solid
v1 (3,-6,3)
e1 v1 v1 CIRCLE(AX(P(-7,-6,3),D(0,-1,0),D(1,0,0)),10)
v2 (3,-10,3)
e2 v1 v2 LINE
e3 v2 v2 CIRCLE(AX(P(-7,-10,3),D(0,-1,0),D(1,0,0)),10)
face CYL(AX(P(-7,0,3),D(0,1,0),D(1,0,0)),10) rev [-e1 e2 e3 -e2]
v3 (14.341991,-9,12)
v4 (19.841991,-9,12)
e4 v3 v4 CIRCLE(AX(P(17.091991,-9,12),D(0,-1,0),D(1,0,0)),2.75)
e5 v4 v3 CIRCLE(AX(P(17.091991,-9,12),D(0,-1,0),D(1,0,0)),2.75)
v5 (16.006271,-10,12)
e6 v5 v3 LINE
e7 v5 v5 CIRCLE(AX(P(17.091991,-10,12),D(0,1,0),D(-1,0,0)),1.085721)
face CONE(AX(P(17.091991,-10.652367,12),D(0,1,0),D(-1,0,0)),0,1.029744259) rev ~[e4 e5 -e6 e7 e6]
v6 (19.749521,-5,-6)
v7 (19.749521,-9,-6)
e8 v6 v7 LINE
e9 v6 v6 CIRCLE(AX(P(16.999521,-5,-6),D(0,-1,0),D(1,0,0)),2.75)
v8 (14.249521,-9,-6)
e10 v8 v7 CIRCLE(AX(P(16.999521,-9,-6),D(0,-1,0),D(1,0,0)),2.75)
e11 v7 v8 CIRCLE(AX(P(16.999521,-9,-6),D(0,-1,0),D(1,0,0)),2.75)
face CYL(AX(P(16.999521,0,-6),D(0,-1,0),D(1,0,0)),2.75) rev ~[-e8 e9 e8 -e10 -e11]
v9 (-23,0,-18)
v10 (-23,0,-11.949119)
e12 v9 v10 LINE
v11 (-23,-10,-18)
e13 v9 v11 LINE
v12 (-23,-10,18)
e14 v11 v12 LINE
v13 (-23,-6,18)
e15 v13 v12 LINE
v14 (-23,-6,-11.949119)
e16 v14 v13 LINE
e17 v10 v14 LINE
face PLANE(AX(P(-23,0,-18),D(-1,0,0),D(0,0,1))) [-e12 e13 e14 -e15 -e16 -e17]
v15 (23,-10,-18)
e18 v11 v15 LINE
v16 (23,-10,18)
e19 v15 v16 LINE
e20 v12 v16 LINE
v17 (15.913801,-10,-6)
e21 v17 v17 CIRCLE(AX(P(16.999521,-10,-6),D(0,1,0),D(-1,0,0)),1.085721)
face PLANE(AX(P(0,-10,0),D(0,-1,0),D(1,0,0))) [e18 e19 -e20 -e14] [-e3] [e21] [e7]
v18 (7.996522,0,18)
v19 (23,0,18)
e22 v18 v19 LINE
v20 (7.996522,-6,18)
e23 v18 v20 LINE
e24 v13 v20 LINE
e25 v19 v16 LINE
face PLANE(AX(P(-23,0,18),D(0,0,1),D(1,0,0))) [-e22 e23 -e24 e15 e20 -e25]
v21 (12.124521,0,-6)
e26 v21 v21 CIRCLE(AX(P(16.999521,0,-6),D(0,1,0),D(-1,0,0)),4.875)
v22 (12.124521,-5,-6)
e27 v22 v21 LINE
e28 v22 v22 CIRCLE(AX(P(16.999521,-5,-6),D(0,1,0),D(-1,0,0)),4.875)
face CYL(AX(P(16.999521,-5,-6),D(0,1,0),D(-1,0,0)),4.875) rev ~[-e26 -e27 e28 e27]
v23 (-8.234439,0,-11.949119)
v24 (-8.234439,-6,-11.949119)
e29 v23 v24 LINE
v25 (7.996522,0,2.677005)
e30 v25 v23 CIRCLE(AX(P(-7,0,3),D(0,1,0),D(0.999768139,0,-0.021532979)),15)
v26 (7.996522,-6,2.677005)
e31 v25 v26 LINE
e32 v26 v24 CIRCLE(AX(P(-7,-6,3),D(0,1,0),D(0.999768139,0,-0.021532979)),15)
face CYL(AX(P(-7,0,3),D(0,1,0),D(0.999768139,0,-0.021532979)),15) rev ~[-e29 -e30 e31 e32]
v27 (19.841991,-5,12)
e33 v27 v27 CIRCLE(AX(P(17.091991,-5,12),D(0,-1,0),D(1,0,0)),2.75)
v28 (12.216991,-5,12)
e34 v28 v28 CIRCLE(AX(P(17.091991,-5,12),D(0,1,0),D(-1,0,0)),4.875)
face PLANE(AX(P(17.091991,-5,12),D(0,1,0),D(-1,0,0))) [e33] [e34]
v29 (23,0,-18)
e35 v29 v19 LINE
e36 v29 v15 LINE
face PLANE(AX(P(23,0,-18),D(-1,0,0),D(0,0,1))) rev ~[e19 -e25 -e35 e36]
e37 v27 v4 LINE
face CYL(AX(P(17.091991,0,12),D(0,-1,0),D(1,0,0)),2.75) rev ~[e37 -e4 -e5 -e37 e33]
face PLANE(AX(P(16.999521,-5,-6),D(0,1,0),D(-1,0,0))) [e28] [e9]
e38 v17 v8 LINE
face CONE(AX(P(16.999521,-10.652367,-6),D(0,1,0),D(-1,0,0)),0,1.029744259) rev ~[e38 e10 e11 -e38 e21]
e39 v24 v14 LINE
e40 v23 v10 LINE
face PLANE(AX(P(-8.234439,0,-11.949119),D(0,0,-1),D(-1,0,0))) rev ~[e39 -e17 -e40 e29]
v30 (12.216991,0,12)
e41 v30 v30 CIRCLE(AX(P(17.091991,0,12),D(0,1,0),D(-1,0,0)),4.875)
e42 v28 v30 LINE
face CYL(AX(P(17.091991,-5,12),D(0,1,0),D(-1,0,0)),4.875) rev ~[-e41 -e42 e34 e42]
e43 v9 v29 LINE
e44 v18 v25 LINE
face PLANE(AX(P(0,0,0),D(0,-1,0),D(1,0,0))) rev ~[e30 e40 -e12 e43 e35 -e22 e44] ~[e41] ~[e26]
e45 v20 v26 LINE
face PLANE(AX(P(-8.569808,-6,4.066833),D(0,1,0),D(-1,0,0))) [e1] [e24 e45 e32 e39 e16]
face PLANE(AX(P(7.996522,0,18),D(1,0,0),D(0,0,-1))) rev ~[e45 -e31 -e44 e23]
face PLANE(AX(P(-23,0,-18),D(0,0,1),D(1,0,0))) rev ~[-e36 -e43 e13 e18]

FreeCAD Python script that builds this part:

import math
import FreeCAD as App
import Part
import Sketcher

doc = App.newDocument("Part")
body = doc.addObject("PartDesign::Body", "Body")

sketch1 = doc.addObject("Sketcher::SketchObject", "Sketch")
body.addObject(sketch1)
sketch1.AttachmentSupport = (doc.XZ_Plane, [""])
sketch1.MapMode = "FlatFace"
sketch1.addGeometry(Part.LineSegment(App.Vector(-23, 18, 0), App.Vector(-23, -18, 0)), False)
sketch1.addGeometry(Part.LineSegment(App.Vector(-23, -18, 0), App.Vector(23, -18, 0)), False)
sketch1.addGeometry(Part.LineSegment(App.Vector(23, -18, 0), App.Vector(23, 18, 0)), False)
sketch1.addGeometry(Part.LineSegment(App.Vector(23, 18, 0), App.Vector(-23, 18, 0)), False)
sketch1.addGeometry(Part.Circle(App.Vector(-7, 3, 0), App.Vector(0, 0, 1), 10), False)
sketch1.addConstraint(Sketcher.Constraint("Coincident", 0, 2, 1, 1))
sketch1.addConstraint(Sketcher.Constraint("Coincident", 1, 2, 2, 1))
sketch1.addConstraint(Sketcher.Constraint("Coincident", 2, 2, 3, 1))
sketch1.addConstraint(Sketcher.Constraint("Coincident", 3, 2, 0, 1))
sketch1.addConstraint(Sketcher.Constraint("Vertical", 0))
sketch1.addConstraint(Sketcher.Constraint("Horizontal", 1))
sketch1.addConstraint(Sketcher.Constraint("Vertical", 2))
sketch1.addConstraint(Sketcher.Constraint("Horizontal", 3))
sketch1.addConstraint(Sketcher.Constraint("Symmetric", 0, 2, 2, 2, -1, 1))
sketch1.addConstraint(Sketcher.Constraint("Diameter", 4, 20.0))
sketch1.addConstraint(Sketcher.Constraint("DistanceX", 1, 1, 1, 2, 46.0))
sketch1.addConstraint(Sketcher.Constraint("DistanceY", 0, 2, 0, 1, 36.0))
sketch1.addConstraint(Sketcher.Constraint("DistanceX", 4, 3, -1, 1, 7.0))
sketch1.addConstraint(Sketcher.Constraint("DistanceY", -1, 1, 4, 3, 3.0))
pad1 = doc.addObject("PartDesign::Pad", "Pad")
body.addObject(pad1)
pad1.Profile = sketch1
pad1.Length = 10

sketch2 = doc.addObject("Sketcher::SketchObject", "Sketch001")
body.addObject(sketch2)
sketch2.AttachmentSupport = (doc.XZ_Plane, [""])
sketch2.MapMode = "FlatFace"
sketch2.addGeometry(Part.Circle(App.Vector(17.091991, 12, 0), App.Vector(0, 0, 1), 2.75), False)
sketch2.addGeometry(Part.Circle(App.Vector(16.999521, -6, 0), App.Vector(0, 0, 1), 2.75), False)
sketch2.addConstraint(Sketcher.Constraint("Equal", 0, 1))
sketch2.addConstraint(Sketcher.Constraint("Diameter", 0, 5.5))
sketch2.addConstraint(Sketcher.Constraint("DistanceY", -1, 1, 0, 3, 12.0))
sketch2.addConstraint(Sketcher.Constraint("DistanceY", 1, 3, -1, 1, 6.0))
sketch2.addConstraint(Sketcher.Constraint("DistanceX", -1, 1, 0, 3, 17.091991))
sketch2.addConstraint(Sketcher.Constraint("DistanceX", -1, 1, 1, 3, 16.999521))
doc.recompute()
hole = doc.addObject("PartDesign::Hole", "Hole")
body.addObject(hole)
hole.Profile = sketch2
hole.ThreadType = "None"
hole.Diameter = 5.5
hole.DepthType = "Dimension"
hole.Depth = 9
hole.DrillPoint = "Angled"
hole.DrillPointAngle = 118
hole.HoleCutType = "Counterbore"
hole.HoleCutDiameter = 9.75
hole.HoleCutDepth = 5
hole.Reversed = True

sketch3 = doc.addObject("Sketcher::SketchObject", "Sketch002")
body.addObject(sketch3)
sketch3.AttachmentSupport = (doc.XZ_Plane, [""])
sketch3.MapMode = "FlatFace"
sketch3.addGeometry(Part.LineSegment(App.Vector(7.996522, 18, 0), App.Vector(7.996522, 2.677005, 0)), False)
sketch3.addGeometry(Part.ArcOfCircle(Part.Circle(App.Vector(-7, 3, 0), App.Vector(0, 0, 1), 15), math.radians(-94.720549), math.radians(-1.233844)), False)
sketch3.addGeometry(Part.LineSegment(App.Vector(-8.234439, -11.949119, 0), App.Vector(-23, -11.949119, 0)), False)
sketch3.addGeometry(Part.LineSegment(App.Vector(-23, -11.949119, 0), App.Vector(-23, 18, 0)), False)
sketch3.addGeometry(Part.LineSegment(App.Vector(-23, 18, 0), App.Vector(7.996522, 18, 0)), False)
sketch3.addGeometry(Part.Circle(App.Vector(-7, 3, 0), App.Vector(0, 0, 1), 10), False)
sketch3.addConstraint(Sketcher.Constraint("Coincident", 0, 2, 1, 2))
sketch3.addConstraint(Sketcher.Constraint("Coincident", 1, 1, 2, 1))
sketch3.addConstraint(Sketcher.Constraint("Coincident", 2, 2, 3, 1))
sketch3.addConstraint(Sketcher.Constraint("Coincident", 3, 2, 4, 1))
sketch3.addConstraint(Sketcher.Constraint("Coincident", 4, 2, 0, 1))
sketch3.addConstraint(Sketcher.Constraint("Vertical", 0))
sketch3.addConstraint(Sketcher.Constraint("Horizontal", 2))
sketch3.addConstraint(Sketcher.Constraint("Vertical", 3))
sketch3.addConstraint(Sketcher.Constraint("Horizontal", 4))
sketch3.addConstraint(Sketcher.Constraint("Coincident", 5, 3, 1, 3))
sketch3.addConstraint(Sketcher.Constraint("Diameter", 5, 20.0))
sketch3.addConstraint(Sketcher.Constraint("Radius", 1, 15.0))
sketch3.addConstraint(Sketcher.Constraint("DistanceX", 1, 3, -1, 1, 7.0))
sketch3.addConstraint(Sketcher.Constraint("DistanceY", -1, 1, 1, 3, 3.0))
sketch3.addConstraint(Sketcher.Constraint("DistanceX", 2, 2, -1, 1, 23.0))
sketch3.addConstraint(Sketcher.Constraint("DistanceY", -1, 1, 3, 2, 18.0))
sketch3.addConstraint(Sketcher.Constraint("DistanceX", 2, 2, 2, 1, 14.765561))
sketch3.addConstraint(Sketcher.Constraint("DistanceX", 4, 1, 4, 2, 30.996522))
pocket1 = doc.addObject("PartDesign::Pocket", "Pocket")
body.addObject(pocket1)
pocket1.Profile = sketch3
pocket1.Length = 6
pocket1.Reversed = True

doc.recompute()
